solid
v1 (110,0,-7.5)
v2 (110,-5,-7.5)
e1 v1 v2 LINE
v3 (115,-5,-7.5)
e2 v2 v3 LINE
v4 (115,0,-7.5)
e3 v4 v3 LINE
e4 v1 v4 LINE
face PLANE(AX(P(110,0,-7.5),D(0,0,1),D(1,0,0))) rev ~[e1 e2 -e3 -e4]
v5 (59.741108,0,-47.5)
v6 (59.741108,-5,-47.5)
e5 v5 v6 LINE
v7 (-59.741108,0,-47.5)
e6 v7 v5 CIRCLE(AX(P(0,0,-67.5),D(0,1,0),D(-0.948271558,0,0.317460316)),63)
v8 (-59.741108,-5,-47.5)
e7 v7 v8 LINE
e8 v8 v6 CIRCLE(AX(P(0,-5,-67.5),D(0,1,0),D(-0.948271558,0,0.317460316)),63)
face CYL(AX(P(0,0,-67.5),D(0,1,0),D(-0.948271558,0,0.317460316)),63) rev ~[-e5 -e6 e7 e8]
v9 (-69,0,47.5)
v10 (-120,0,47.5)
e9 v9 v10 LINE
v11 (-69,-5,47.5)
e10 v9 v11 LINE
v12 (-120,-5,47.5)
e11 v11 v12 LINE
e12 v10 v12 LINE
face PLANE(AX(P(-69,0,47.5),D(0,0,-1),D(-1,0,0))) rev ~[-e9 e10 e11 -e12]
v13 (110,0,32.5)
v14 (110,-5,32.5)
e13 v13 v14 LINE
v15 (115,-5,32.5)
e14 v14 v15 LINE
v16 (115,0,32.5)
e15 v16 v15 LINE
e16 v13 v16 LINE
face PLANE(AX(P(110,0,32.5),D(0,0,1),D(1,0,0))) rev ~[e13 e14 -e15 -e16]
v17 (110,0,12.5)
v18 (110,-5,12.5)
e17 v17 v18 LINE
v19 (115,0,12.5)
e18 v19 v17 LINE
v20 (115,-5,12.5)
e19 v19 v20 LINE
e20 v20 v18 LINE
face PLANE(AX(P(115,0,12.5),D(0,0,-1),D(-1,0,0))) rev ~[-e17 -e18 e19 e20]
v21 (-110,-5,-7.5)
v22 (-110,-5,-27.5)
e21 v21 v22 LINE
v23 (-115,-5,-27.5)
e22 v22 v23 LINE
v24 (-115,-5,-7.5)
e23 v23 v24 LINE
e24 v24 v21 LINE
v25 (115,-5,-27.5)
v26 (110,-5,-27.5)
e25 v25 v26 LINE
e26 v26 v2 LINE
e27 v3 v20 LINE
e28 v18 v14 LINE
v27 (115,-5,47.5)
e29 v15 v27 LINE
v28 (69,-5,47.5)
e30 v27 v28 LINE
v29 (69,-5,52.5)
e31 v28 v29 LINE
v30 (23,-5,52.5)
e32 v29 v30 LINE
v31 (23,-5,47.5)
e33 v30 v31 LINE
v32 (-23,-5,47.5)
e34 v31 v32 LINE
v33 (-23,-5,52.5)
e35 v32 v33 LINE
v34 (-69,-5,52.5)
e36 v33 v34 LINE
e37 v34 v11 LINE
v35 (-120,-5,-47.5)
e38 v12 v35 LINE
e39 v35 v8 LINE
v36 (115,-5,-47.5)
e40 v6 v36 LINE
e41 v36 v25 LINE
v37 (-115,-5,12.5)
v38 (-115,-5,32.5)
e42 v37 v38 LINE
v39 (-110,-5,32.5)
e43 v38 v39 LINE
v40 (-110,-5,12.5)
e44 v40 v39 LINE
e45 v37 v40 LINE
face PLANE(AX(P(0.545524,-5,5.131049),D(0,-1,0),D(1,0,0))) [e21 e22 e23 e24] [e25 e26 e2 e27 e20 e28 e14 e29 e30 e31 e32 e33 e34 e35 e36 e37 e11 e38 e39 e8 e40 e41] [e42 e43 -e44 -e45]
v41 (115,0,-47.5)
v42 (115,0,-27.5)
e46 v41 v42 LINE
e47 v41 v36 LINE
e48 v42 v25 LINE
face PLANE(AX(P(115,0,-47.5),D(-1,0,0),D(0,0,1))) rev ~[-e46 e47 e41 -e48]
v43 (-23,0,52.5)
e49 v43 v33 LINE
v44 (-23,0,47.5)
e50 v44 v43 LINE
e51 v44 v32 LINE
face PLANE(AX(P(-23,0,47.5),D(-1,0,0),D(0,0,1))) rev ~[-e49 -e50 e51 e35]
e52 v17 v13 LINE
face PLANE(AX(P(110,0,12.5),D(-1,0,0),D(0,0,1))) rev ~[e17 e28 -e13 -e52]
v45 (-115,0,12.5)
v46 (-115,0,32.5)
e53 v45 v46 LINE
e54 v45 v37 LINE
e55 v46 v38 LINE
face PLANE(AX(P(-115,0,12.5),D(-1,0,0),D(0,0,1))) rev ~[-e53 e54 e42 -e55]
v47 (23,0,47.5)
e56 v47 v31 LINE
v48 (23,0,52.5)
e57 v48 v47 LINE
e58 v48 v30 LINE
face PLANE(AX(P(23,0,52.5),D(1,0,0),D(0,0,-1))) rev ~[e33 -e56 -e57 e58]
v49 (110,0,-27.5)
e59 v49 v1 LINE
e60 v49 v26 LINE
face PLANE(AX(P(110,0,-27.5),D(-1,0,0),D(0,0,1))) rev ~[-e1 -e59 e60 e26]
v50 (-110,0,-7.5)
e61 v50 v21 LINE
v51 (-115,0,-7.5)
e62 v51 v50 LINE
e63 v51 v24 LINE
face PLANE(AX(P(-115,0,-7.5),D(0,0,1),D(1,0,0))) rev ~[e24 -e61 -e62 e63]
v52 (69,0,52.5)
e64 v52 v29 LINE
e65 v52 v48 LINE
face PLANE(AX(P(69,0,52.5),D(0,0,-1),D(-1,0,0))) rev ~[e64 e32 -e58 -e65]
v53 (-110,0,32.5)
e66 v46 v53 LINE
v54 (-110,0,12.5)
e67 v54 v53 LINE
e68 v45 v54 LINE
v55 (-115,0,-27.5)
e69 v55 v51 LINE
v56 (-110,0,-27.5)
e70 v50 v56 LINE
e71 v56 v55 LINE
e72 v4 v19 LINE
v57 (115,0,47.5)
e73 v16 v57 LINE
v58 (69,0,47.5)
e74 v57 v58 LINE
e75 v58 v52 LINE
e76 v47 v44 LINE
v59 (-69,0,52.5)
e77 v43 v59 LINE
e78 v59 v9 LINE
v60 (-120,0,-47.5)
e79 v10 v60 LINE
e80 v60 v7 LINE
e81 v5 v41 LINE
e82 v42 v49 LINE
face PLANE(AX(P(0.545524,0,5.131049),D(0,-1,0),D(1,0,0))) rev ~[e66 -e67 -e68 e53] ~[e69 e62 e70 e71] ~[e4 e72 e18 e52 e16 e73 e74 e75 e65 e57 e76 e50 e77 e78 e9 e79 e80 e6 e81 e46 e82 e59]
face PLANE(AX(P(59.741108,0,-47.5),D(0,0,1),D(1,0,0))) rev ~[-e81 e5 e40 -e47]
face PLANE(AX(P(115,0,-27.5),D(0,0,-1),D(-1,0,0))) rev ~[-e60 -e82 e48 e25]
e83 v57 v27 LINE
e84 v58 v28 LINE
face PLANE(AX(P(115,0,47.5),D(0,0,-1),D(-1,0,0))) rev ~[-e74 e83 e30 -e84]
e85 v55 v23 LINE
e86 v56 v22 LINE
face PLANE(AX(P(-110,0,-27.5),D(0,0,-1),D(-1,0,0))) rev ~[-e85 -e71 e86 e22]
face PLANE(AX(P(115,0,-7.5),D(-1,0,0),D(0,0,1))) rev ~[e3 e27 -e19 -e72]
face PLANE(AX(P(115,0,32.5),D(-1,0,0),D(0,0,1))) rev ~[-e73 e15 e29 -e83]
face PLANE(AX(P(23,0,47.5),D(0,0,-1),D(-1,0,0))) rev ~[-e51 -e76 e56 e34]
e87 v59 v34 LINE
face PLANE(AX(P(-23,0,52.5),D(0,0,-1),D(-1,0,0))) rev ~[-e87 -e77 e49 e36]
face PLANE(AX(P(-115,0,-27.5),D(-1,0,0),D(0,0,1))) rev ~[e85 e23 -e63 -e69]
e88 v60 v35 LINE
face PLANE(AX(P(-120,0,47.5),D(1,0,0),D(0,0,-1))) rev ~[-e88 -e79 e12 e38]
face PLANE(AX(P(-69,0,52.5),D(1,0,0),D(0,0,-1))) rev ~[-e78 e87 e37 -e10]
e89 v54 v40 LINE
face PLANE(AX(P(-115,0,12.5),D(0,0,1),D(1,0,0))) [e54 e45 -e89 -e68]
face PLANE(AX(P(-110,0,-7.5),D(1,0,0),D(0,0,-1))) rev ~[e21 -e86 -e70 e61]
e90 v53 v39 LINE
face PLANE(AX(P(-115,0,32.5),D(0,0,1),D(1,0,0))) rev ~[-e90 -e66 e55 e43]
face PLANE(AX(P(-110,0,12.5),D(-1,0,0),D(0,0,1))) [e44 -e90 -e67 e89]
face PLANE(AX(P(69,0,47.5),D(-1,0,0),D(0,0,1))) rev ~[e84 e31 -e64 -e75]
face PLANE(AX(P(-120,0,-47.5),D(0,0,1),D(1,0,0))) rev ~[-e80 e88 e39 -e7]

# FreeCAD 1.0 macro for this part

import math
import FreeCAD as App
import Part
import Sketcher

V = App.Vector
Q = App.Units.Quantity

doc = App.newDocument("Part")
params = doc.addObject("Spreadsheet::Sheet", "Params")
for row, (alias, value) in enumerate([
    ("sketch1_radius", "63 mm"),
    ("sketch1_width", "5 mm"),
    ("sketch1_width2", "46 mm"),
    ("sketch1_width3", "51 mm"),
    ("sketch1_height", "20 mm"),
    ("pad1_length", "5 mm"),
], start=1):
    params.set(f"A{row}", alias)
    params.set(f"B{row}", "=" + value)
    params.setAlias(f"B{row}", alias)

body = doc.addObject("PartDesign::Body", "Body")

sketch1 = body.newObject("Sketcher::SketchObject", "Sketch")
sketch1.AttachmentSupport = (doc.getObject("XZ_Plane"), [""])
sketch1.MapMode = "FlatFace"
sketch1.addGeometry([
    Part.LineSegment(V(60, -48, 0), V(115, -48, 0)),
    Part.LineSegment(V(115, -48, 0), V(115, -28, 0)),
    Part.LineSegment(V(115, -28, 0), V(110, -28, 0)),
    Part.LineSegment(V(110, -28, 0), V(110, -8, 0)),
    Part.LineSegment(V(110, -8, 0), V(115, -8, 0)),
    Part.LineSegment(V(115, -8, 0), V(115, 12, 0)),
    Part.LineSegment(V(115, 12, 0), V(110, 12, 0)),
    Part.LineSegment(V(110, 12, 0), V(110, 32, 0)),
    Part.LineSegment(V(110, 32, 0), V(115, 32, 0)),
    Part.LineSegment(V(115, 32, 0), V(115, 48, 0)),
    Part.LineSegment(V(115, 48, 0), V(69, 48, 0)),
    Part.LineSegment(V(69, 48, 0), V(69, 52, 0)),
    Part.LineSegment(V(69, 52, 0), V(23, 52, 0)),
    Part.LineSegment(V(23, 52, 0), V(23, 48, 0)),
    Part.LineSegment(V(23, 48, 0), V(-23, 48, 0)),
    Part.LineSegment(V(-23, 48, 0), V(-23, 52, 0)),
    Part.LineSegment(V(-23, 52, 0), V(-69, 52, 0)),
    Part.LineSegment(V(-69, 52, 0), V(-69, 48, 0)),
    Part.LineSegment(V(-69, 48, 0), V(-120, 48, 0)),
    Part.LineSegment(V(-120, 48, 0), V(-120, -48, 0)),
    Part.LineSegment(V(-120, -48, 0), V(-60, -48, 0)),
    Part.ArcOfCircle(Part.Circle(V(0, -67, 0), V(0, 0, 1), 63), math.radians(19), math.radians(161)),
    Part.LineSegment(V(-110, -8, 0), V(-110, -28, 0)),
    Part.LineSegment(V(-110, -28, 0), V(-115, -28, 0)),
    Part.LineSegment(V(-115, -28, 0), V(-115, -8, 0)),
    Part.LineSegment(V(-115, -8, 0), V(-110, -8, 0)),
    Part.LineSegment(V(-110, 12, 0), V(-115, 12, 0)),
    Part.LineSegment(V(-115, 12, 0), V(-115, 32, 0)),
    Part.LineSegment(V(-115, 32, 0), V(-110, 32, 0)),
    Part.LineSegment(V(-110, 32, 0), V(-110, 12, 0)),
], False)
sketch1.addConstraint([
    Sketcher.Constraint("Coincident", 0, 2, 1, 1),
    Sketcher.Constraint("Coincident", 1, 2, 2, 1),
    Sketcher.Constraint("Coincident", 2, 2, 3, 1),
    Sketcher.Constraint("Coincident", 3, 2, 4, 1),
    Sketcher.Constraint("Coincident", 4, 2, 5, 1),
    Sketcher.Constraint("Coincident", 5, 2, 6, 1),
    Sketcher.Constraint("Coincident", 6, 2, 7, 1),
    Sketcher.Constraint("Coincident", 7, 2, 8, 1),
    Sketcher.Constraint("Coincident", 8, 2, 9, 1),
    Sketcher.Constraint("Coincident", 9, 2, 10, 1),
    Sketcher.Constraint("Coincident", 10, 2, 11, 1),
    Sketcher.Constraint("Coincident", 11, 2, 12, 1),
    Sketcher.Constraint("Coincident", 12, 2, 13, 1),
    Sketcher.Constraint("Coincident", 13, 2, 14, 1),
    Sketcher.Constraint("Coincident", 14, 2, 15, 1),
    Sketcher.Constraint("Coincident", 15, 2, 16, 1),
    Sketcher.Constraint("Coincident", 16, 2, 17, 1),
    Sketcher.Constraint("Coincident", 17, 2, 18, 1),
    Sketcher.Constraint("Coincident", 18, 2, 19, 1),
    Sketcher.Constraint("Coincident", 19, 2, 20, 1),
    Sketcher.Constraint("Coincident", 20, 2, 21, 2),
    Sketcher.Constraint("Coincident", 21, 1, 0, 1),
    Sketcher.Constraint("Coincident", 22, 2, 23, 1),
    Sketcher.Constraint("Coincident", 23, 2, 24, 1),
    Sketcher.Constraint("Coincident", 24, 2, 25, 1),
    Sketcher.Constraint("Coincident", 25, 2, 22, 1),
    Sketcher.Constraint("Coincident", 26, 2, 27, 1),
    Sketcher.Constraint("Coincident", 27, 2, 28, 1),
    Sketcher.Constraint("Coincident", 28, 2, 29, 1),
    Sketcher.Constraint("Coincident", 29, 2, 26, 1),
    Sketcher.Constraint("Horizontal", 0),
    Sketcher.Constraint("Vertical", 1),
    Sketcher.Constraint("Horizontal", 2),
    Sketcher.Constraint("Vertical", 3),
    Sketcher.Constraint("Horizontal", 4),
    Sketcher.Constraint("Vertical", 5),
    Sketcher.Constraint("Horizontal", 6),
    Sketcher.Constraint("Vertical", 7),
    Sketcher.Constraint("Horizontal", 8),
    Sketcher.Constraint("Vertical", 9),
    Sketcher.Constraint("Horizontal", 10),
    Sketcher.Constraint("Vertical", 11),
    Sketcher.Constraint("Horizontal", 12),
    Sketcher.Constraint("Vertical", 13),
    Sketcher.Constraint("Horizontal", 14),
    Sketcher.Constraint("Vertical", 15),
    Sketcher.Constraint("Horizontal", 16),
    Sketcher.Constraint("Vertical", 17),
    Sketcher.Constraint("Horizontal", 18),
    Sketcher.Constraint("Vertical", 19),
    Sketcher.Constraint("Horizontal", 20),
    Sketcher.Constraint("Vertical", 22),
    Sketcher.Constraint("Horizontal", 23),
    Sketcher.Constraint("Vertical", 24),
    Sketcher.Constraint("Horizontal", 25),
    Sketcher.Constraint("Horizontal", 26),
    Sketcher.Constraint("Vertical", 27),
    Sketcher.Constraint("Horizontal", 28),
    Sketcher.Constraint("Vertical", 29),
    Sketcher.Constraint("Symmetric", 12, 2, 15, 2, -2),
    Sketcher.Constraint("Symmetric", 10, 2, 17, 2, -2),
    Sketcher.Constraint("Symmetric", 20, 2, 21, 1, -2),
    Sketcher.Constraint("Symmetric", 2, 2, 22, 2, -2),
    Sketcher.Constraint("Symmetric", 4, 2, 24, 2, -2),
    Sketcher.Constraint("Symmetric", 5, 2, 26, 2, -2),
    Sketcher.Constraint("Symmetric", 8, 2, 27, 2, -2),
    Sketcher.Constraint("Symmetric", 0, 2, 9, 2, -1),
    Sketcher.Constraint("Horizontal", 10, 2, 13, 2),
    Sketcher.Constraint("Vertical", 3, 2, 6, 2),
    Sketcher.Constraint("Vertical", 25, 2, 28, 2),
    Sketcher.Constraint("Equal", 10, 12),
    Sketcher.Constraint("Equal", 12, 14),
    Sketcher.Constraint("Equal", 1, 3),
    Sketcher.Constraint("Equal", 3, 5),
    Sketcher.Constraint("Equal", 5, 7),
    Sketcher.Constraint("Equal", 28, 11),
    Sketcher.Constraint("Radius", 21, Q("63 mm")),
    Sketcher.Constraint("DistanceX", 2, 2, 2, 1, Q("5 mm")),
    Sketcher.Constraint("DistanceX", 10, 2, 10, 1, Q("46 mm")),
    Sketcher.Constraint("DistanceX", 18, 2, 18, 1, Q("51 mm")),
    Sketcher.Constraint("DistanceY", 1, 1, 1, 2, Q("20 mm")),
    Sketcher.Constraint("DistanceY", 9, 1, 9, 2, Q("15 mm")),
    Sketcher.Constraint("DistanceY", 21, 3, 0, 2, Q("20 mm")),
])
sketch1.setExpression("Constraints[76]", "Params.sketch1_radius")
sketch1.setExpression("Constraints[77]", "Params.sketch1_width")
sketch1.setExpression("Constraints[78]", "Params.sketch1_width2")
sketch1.setExpression("Constraints[79]", "Params.sketch1_width3")
sketch1.setExpression("Constraints[80]", "Params.sketch1_height")
pad1 = body.newObject("PartDesign::Pad", "Pad")
pad1.Profile = sketch1
pad1.setExpression("Length", "Params.pad1_length")

doc.recompute()
